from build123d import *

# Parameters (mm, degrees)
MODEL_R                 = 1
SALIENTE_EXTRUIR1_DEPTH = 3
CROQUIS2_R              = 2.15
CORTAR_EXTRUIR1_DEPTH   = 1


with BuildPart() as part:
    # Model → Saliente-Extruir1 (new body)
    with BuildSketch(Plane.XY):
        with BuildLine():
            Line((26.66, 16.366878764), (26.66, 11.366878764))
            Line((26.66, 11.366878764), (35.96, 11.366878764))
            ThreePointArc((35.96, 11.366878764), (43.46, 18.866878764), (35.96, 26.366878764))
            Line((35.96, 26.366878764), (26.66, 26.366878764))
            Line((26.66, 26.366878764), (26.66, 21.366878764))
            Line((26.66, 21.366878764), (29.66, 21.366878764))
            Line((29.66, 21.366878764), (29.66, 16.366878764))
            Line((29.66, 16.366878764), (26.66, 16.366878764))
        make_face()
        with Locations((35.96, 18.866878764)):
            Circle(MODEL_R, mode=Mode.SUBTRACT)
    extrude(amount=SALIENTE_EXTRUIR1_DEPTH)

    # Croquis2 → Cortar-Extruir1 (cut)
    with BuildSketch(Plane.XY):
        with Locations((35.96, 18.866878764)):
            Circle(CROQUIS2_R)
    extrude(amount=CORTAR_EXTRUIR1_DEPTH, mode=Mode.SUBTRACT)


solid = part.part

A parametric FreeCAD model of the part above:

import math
import FreeCAD as App
import Part
import Sketcher
Q = App.Units.Quantity

doc = App.newDocument("Part")
body = doc.addObject("PartDesign::Body", "Body")

# Sketch on XY plane
sketch1 = doc.addObject("Sketcher::SketchObject", "Sketch")
body.addObject(sketch1)
sketch1.AttachmentSupport = (doc.XY_Plane, [""])
sketch1.MapMode = "FlatFace"
sketch1.addGeometry(Part.LineSegment(App.Vector(26.7, 16.4, 0), App.Vector(26.7, 11.4, 0)), False)
sketch1.addGeometry(Part.LineSegment(App.Vector(26.7, 11.4, 0), App.Vector(36, 11.4, 0)), False)
sketch1.addGeometry(Part.ArcOfCircle(Part.Circle(App.Vector(36, 18.9, 0), App.Vector(0, 0, 1), 7.5), math.radians(-90), math.radians(90)), False)
sketch1.addGeometry(Part.LineSegment(App.Vector(36, 26.4, 0), App.Vector(26.7, 26.4, 0)), False)
sketch1.addGeometry(Part.LineSegment(App.Vector(26.7, 26.4, 0), App.Vector(26.7, 21.4, 0)), False)
sketch1.addGeometry(Part.LineSegment(App.Vector(26.7, 21.4, 0), App.Vector(29.7, 21.4, 0)), False)
sketch1.addGeometry(Part.LineSegment(App.Vector(29.7, 21.4, 0), App.Vector(29.7, 16.4, 0)), False)
sketch1.addGeometry(Part.LineSegment(App.Vector(29.7, 16.4, 0), App.Vector(26.7, 16.4, 0)), False)
sketch1.addGeometry(Part.Circle(App.Vector(36, 18.9, 0), App.Vector(0, 0, 1), 1), False)
sketch1.addConstraint(Sketcher.Constraint("Coincident", 0, 2, 1, 1))
sketch1.addConstraint(Sketcher.Constraint("Tangent", 1, 2, 2, 1))
sketch1.addConstraint(Sketcher.Constraint("Tangent", 2, 2, 3, 1))
sketch1.addConstraint(Sketcher.Constraint("Coincident", 3, 2, 4, 1))
sketch1.addConstraint(Sketcher.Constraint("Coincident", 4, 2, 5, 1))
sketch1.addConstraint(Sketcher.Constraint("Coincident", 5, 2, 6, 1))
sketch1.addConstraint(Sketcher.Constraint("Coincident", 6, 2, 7, 1))
sketch1.addConstraint(Sketcher.Constraint("Coincident", 7, 2, 0, 1))
sketch1.addConstraint(Sketcher.Constraint("Vertical", 0))
sketch1.addConstraint(Sketcher.Constraint("Horizontal", 1))
sketch1.addConstraint(Sketcher.Constraint("Horizontal", 3))
sketch1.addConstraint(Sketcher.Constraint("Vertical", 4))
sketch1.addConstraint(Sketcher.Constraint("Horizontal", 5))
sketch1.addConstraint(Sketcher.Constraint("Vertical", 6))
sketch1.addConstraint(Sketcher.Constraint("Horizontal", 7))
sketch1.addConstraint(Sketcher.Constraint("Coincident", 8, 3, 2, 3))
sketch1.addConstraint(Sketcher.Constraint("Vertical", 0, 2, 3, 2))
sketch1.addConstraint(Sketcher.Constraint("Equal", 0, 4))
sketch1.addConstraint(Sketcher.Constraint("Equal", 4, 6))
sketch1.addConstraint(Sketcher.Constraint("Diameter", 8, Q("2 mm")))
sketch1.addConstraint(Sketcher.Constraint("Radius", 2, Q("7.5 mm")))
sketch1.addConstraint(Sketcher.Constraint("DistanceX", 5, 1, 5, 2, Q("3 mm")))
sketch1.addConstraint(Sketcher.Constraint("DistanceX", 1, 1, 1, 2, Q("9.3 mm")))
sketch1.addConstraint(Sketcher.Constraint("DistanceX", -1, 1, 2, 3, Q("35.96 mm")))
sketch1.addConstraint(Sketcher.Constraint("DistanceY", -1, 1, 2, 3, Q("18.866879 mm")))
pad1 = doc.addObject("PartDesign::Pad", "Pad")
body.addObject(pad1)
pad1.Profile = sketch1
pad1.Length = 3

# Sketch on XY plane
sketch2 = doc.addObject("Sketcher::SketchObject", "Sketch001")
body.addObject(sketch2)
sketch2.AttachmentSupport = (doc.XY_Plane, [""])
sketch2.MapMode = "FlatFace"
sketch2.addGeometry(Part.Circle(App.Vector(36, 18.9, 0), App.Vector(0, 0, 1), 2.1), False)
sketch2.addConstraint(Sketcher.Constraint("Diameter", 0, Q("4.3 mm")))
sketch2.addConstraint(Sketcher.Constraint("DistanceX", -1, 1, 0, 3, Q("35.96 mm")))
sketch2.addConstraint(Sketcher.Constraint("DistanceY", -1, 1, 0, 3, Q("18.866879 mm")))
pocket1 = doc.addObject("PartDesign::Pocket", "Pocket")
body.addObject(pocket1)
pocket1.Profile = sketch2
pocket1.Length = 1
pocket1.Reversed = True

doc.recompute()
